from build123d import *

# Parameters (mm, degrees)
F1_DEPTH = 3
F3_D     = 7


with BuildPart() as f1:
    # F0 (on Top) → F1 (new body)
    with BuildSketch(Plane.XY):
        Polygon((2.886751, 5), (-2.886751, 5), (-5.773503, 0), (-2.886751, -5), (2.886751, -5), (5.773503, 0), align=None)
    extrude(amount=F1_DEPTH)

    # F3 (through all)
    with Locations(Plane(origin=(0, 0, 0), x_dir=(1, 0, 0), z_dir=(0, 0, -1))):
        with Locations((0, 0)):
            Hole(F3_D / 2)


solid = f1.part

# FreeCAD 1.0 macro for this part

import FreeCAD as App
import Part
import Sketcher
from FreeCAD import Vector
Q = App.Units.Quantity

doc = App.newDocument("Part")
body = doc.addObject("PartDesign::Body", "Body")

# Sketch on XY plane
sketch1 = body.newObject("Sketcher::SketchObject", "Sketch")
sketch1.AttachmentSupport = (doc.getObject("XY_Plane"), [""])
sketch1.MapMode = "FlatFace"
sketch1.addGeometry([
    Part.LineSegment(Vector(3, 5, 0), Vector(-3, 5, 0)),  # 0
    Part.LineSegment(Vector(-3, 5, 0), Vector(-6, 0, 0)),  # 1
    Part.LineSegment(Vector(-6, 0, 0), Vector(-3, -5, 0)),  # 2
    Part.LineSegment(Vector(-3, -5, 0), Vector(3, -5, 0)),  # 3
    Part.LineSegment(Vector(3, -5, 0), Vector(6, 0, 0)),  # 4
    Part.LineSegment(Vector(6, 0, 0), Vector(3, 5, 0)),  # 5
], False)
sketch1.addConstraint([
    Sketcher.Constraint("Coincident", 0, 2, 1, 1),
    Sketcher.Constraint("Coincident", 1, 2, 2, 1),
    Sketcher.Constraint("Coincident", 2, 2, 3, 1),
    Sketcher.Constraint("Coincident", 3, 2, 4, 1),
    Sketcher.Constraint("Coincident", 4, 2, 5, 1),
    Sketcher.Constraint("Coincident", 5, 2, 0, 1),
    Sketcher.Constraint("Horizontal", 0),
    Sketcher.Constraint("Horizontal", 3),
    Sketcher.Constraint("Symmetric", 0, 2, 3, 2, -1, 1),
    Sketcher.Constraint("Symmetric", 1, 2, 4, 2, -1, 1),
    Sketcher.Constraint("PointOnObject", 1, 2, -1),
    Sketcher.Constraint("Parallel", 2, 5),
    Sketcher.Constraint("Vertical", 0, 2, 2, 2),
    Sketcher.Constraint("Angle", 1, Q("-120.000006 deg")),
    Sketcher.Constraint("DistanceY", -1, 1, 0, 2, Q("5 mm")),
    Sketcher.Constraint("DistanceX", 0, 2, 0, 1, Q("5.773502 mm")),
])
pad1 = body.newObject("PartDesign::Pad", "Pad")
pad1.Profile = sketch1
pad1.Length = 3

# Sketch on XY plane
sketch2 = body.newObject("Sketcher::SketchObject", "Sketch001")
sketch2.AttachmentSupport = (doc.getObject("XY_Plane"), [""])
sketch2.MapMode = "FlatFace"
sketch2.addGeometry(Part.Circle(Vector(0, 0, 0), Vector(0, 0, 1), 3.5), False)
sketch2.addConstraint([
    Sketcher.Constraint("Coincident", 0, 3, -1, 1),
    Sketcher.Constraint("Diameter", 0, Q("7 mm")),
])
doc.recompute()
hole = body.newObject("PartDesign::Hole", "Hole")
hole.Profile = sketch2
hole.ThreadType = "None"
hole.Diameter = 7
hole.DepthType = "ThroughAll"
hole.Reversed = True

doc.recompute()
